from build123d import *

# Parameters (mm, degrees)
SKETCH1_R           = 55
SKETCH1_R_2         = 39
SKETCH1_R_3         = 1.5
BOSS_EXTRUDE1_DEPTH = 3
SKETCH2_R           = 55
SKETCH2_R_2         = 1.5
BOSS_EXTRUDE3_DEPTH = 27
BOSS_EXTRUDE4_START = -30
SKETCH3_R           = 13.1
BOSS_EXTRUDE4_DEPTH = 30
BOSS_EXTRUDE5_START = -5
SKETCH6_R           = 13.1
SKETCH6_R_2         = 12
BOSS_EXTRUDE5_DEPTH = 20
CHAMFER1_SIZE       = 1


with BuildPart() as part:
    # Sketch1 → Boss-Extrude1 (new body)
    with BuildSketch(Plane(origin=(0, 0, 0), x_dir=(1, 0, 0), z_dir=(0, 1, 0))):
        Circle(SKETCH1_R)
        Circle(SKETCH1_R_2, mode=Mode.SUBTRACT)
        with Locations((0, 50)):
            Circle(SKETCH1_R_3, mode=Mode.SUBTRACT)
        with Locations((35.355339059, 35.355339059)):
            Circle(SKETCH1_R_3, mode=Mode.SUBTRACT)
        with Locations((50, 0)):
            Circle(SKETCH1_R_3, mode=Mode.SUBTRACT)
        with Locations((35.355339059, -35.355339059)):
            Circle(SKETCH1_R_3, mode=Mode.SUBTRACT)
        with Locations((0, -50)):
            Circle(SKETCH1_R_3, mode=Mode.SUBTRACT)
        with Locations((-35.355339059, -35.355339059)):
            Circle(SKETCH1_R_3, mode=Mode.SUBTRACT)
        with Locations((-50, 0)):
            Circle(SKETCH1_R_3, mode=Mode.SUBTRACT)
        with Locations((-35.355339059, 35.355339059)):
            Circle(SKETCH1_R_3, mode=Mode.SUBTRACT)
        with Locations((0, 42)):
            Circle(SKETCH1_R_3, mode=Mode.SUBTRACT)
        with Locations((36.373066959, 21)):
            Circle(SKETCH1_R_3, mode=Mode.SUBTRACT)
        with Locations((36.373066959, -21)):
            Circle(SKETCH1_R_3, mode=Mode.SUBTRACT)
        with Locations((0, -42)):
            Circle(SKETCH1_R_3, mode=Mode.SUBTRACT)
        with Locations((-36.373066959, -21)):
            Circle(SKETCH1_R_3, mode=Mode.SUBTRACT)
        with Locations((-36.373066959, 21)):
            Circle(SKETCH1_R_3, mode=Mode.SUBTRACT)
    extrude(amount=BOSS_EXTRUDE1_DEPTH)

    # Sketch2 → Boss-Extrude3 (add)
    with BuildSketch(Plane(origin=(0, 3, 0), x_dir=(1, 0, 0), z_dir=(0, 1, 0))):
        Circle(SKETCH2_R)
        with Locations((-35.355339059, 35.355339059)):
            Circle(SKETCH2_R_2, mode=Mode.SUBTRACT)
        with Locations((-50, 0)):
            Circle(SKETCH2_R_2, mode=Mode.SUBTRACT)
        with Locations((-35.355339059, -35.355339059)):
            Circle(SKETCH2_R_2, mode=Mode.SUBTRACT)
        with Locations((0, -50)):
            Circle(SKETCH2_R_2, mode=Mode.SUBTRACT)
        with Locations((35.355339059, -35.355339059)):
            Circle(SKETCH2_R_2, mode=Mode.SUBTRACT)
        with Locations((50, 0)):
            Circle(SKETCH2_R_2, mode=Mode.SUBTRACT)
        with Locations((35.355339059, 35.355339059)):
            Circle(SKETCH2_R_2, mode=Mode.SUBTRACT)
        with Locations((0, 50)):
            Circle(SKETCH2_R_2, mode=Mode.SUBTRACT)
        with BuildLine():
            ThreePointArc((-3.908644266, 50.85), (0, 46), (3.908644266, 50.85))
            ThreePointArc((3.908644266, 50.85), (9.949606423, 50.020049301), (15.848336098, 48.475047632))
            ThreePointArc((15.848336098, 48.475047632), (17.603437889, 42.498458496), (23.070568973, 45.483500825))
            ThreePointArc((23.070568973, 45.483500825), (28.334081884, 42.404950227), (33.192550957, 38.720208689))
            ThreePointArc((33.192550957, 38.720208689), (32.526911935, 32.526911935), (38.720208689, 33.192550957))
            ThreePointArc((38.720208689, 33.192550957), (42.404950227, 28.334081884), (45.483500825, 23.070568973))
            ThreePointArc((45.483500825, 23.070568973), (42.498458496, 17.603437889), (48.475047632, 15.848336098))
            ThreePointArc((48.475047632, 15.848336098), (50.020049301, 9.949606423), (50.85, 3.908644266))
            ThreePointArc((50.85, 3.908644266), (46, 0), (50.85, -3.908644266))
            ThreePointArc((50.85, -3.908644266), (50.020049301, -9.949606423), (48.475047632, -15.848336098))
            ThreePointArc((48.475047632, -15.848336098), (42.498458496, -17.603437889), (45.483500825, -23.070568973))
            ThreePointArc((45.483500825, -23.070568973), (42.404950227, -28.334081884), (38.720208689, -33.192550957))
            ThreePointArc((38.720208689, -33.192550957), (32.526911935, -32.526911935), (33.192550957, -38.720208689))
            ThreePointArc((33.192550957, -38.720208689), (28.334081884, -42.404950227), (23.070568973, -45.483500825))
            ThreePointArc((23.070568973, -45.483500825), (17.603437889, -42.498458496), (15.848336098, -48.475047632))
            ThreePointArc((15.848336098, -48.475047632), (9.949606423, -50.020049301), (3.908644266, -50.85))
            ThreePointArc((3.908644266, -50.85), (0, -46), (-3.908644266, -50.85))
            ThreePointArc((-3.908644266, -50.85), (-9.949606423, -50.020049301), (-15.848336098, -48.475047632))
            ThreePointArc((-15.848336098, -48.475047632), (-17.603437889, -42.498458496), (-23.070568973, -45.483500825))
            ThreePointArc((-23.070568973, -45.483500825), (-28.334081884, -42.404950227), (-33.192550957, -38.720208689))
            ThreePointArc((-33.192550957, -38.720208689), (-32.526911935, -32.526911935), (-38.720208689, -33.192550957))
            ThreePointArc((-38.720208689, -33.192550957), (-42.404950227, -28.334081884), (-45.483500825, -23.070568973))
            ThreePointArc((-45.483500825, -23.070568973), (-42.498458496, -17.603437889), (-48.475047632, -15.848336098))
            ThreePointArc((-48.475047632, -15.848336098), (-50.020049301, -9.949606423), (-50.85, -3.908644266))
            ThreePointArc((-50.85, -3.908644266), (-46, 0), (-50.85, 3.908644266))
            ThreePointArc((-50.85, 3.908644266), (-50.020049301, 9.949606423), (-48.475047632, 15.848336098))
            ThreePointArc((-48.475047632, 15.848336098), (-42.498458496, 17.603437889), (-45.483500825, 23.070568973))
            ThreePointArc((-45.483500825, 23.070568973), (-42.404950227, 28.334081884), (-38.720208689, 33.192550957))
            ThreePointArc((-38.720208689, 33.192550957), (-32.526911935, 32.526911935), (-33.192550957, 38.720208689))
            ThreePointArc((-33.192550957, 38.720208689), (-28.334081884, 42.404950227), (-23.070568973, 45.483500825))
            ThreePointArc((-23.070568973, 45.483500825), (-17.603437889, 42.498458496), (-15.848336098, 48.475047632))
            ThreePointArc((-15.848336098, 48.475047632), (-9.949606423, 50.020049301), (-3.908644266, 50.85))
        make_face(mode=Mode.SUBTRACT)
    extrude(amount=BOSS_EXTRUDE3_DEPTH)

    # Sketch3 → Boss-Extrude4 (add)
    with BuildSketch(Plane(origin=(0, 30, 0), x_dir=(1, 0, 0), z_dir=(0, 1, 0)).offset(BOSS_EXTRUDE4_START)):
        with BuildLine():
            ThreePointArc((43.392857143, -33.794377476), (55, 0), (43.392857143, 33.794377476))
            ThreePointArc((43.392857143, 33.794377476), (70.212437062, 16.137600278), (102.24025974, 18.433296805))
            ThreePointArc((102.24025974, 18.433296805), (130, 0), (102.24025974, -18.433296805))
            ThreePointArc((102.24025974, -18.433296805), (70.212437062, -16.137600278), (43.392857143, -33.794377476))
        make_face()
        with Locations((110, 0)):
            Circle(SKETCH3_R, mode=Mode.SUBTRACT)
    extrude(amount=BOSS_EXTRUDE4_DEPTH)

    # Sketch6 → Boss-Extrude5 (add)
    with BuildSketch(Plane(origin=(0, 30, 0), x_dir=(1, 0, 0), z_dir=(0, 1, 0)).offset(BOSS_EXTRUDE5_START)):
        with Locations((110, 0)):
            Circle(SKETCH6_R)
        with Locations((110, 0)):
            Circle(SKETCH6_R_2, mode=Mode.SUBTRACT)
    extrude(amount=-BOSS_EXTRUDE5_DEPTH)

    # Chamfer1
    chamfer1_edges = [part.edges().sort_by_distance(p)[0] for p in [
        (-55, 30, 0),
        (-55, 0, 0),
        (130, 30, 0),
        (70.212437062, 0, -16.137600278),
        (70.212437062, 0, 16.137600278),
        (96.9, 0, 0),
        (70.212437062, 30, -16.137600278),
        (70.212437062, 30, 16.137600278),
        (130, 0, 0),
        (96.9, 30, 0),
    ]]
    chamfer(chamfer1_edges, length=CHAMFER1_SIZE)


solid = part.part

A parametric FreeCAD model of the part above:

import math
import FreeCAD as App
import Part
import Sketcher

V = App.Vector


def edges_at(feature, points):
    """Names of the edges that pass closest to the given points."""
    edges = feature.Shape.Edges
    near = lambda p: min(range(len(edges)), key=lambda i: edges[i].distToShape(Part.Vertex(*p))[0])
    return sorted({f"Edge{near(p) + 1}" for p in points})

doc = App.newDocument("Part")
body = doc.addObject("PartDesign::Body", "Body")

sketch1 = body.newObject("Sketcher::SketchObject", "Sketch")
sketch1.AttachmentSupport = (doc.getObject("XZ_Plane"), [""])
sketch1.MapMode = "FlatFace"
sketch1.addGeometry([
    Part.Circle(V(0, 0, 0), V(0, 0, 1), 55),
    Part.Circle(V(-35.4, 35.4, 0), V(0, 0, 1), 1.5),
    Part.Circle(V(0, 50, 0), V(0, 0, 1), 1.5),
    Part.Circle(V(0, 42, 0), V(0, 0, 1), 1.5),
    Part.Circle(V(-36.4, 21, 0), V(0, 0, 1), 1.5),
    Part.Circle(V(-50, 0, 0), V(0, 0, 1), 1.5),
    Part.Circle(V(0, 0, 0), V(0, 0, 1), 39),
    Part.Circle(V(35.4, 35.4, 0), V(0, 0, 1), 1.5),
    Part.Circle(V(36.4, 21, 0), V(0, 0, 1), 1.5),
    Part.Circle(V(50, 0, 0), V(0, 0, 1), 1.5),
    Part.Circle(V(-36.4, -21, 0), V(0, 0, 1), 1.5),
    Part.Circle(V(-35.4, -35.4, 0), V(0, 0, 1), 1.5),
    Part.Circle(V(0, -42, 0), V(0, 0, 1), 1.5),
    Part.Circle(V(0, -50, 0), V(0, 0, 1), 1.5),
    Part.Circle(V(36.4, -21, 0), V(0, 0, 1), 1.5),
    Part.Circle(V(35.4, -35.4, 0), V(0, 0, 1), 1.5),
], False)
sketch1.addConstraint([
    Sketcher.Constraint("Coincident", 0, 3, -1, 1),
    Sketcher.Constraint("Coincident", 6, 3, -1, 1),
    Sketcher.Constraint("Equal", 1, 2),
    Sketcher.Constraint("Equal", 2, 3),
    Sketcher.Constraint("Equal", 3, 4),
    Sketcher.Constraint("Equal", 4, 5),
    Sketcher.Constraint("Equal", 5, 7),
    Sketcher.Constraint("Equal", 7, 8),
    Sketcher.Constraint("Equal", 8, 9),
    Sketcher.Constraint("Equal", 9, 10),
    Sketcher.Constraint("Equal", 10, 11),
    Sketcher.Constraint("Equal", 11, 12),
    Sketcher.Constraint("Equal", 12, 13),
    Sketcher.Constraint("Equal", 13, 14),
    Sketcher.Constraint("Equal", 14, 15),
    Sketcher.Constraint("Symmetric", 5, 3, 9, 3, -1, 1),
    Sketcher.Constraint("Symmetric", 8, 3, 10, 3, -1, 1),
    Sketcher.Constraint("Symmetric", 7, 3, 11, 3, -1, 1),
    Sketcher.Constraint("Symmetric", 3, 3, 12, 3, -1, 1),
    Sketcher.Constraint("Symmetric", 2, 3, 13, 3, -1, 1),
    Sketcher.Constraint("Symmetric", 4, 3, 14, 3, -1, 1),
    Sketcher.Constraint("Symmetric", 1, 3, 15, 3, -1, 1),
    Sketcher.Constraint("Symmetric", 1, 3, 7, 3, -2),
    Sketcher.Constraint("Symmetric", 4, 3, 8, 3, -2),
    Sketcher.Constraint("PointOnObject", 2, 3, -2),
    Sketcher.Constraint("PointOnObject", 3, 3, -2),
    Sketcher.Constraint("PointOnObject", 5, 3, -1),
    Sketcher.Constraint("Diameter", 0, 110.0),
    Sketcher.Constraint("Diameter", 1, 3.0),
    Sketcher.Constraint("Diameter", 6, 78.0),
    Sketcher.Constraint("DistanceY", -1, 1, 2, 3, 50.0),
    Sketcher.Constraint("DistanceY", -1, 1, 3, 3, 42.0),
    Sketcher.Constraint("DistanceY", -1, 1, 4, 3, 21.0),
    Sketcher.Constraint("DistanceX", 5, 3, -1, 1, 50.0),
    Sketcher.Constraint("DistanceX", 1, 3, -1, 1, 35.355339),
    Sketcher.Constraint("DistanceY", -1, 1, 1, 3, 35.355339),
    Sketcher.Constraint("DistanceX", 4, 3, -1, 1, 36.373067),
])
pad1 = body.newObject("PartDesign::Pad", "Pad")
pad1.Profile = sketch1
pad1.Length = 3
pad1.Reversed = True

sketch2 = body.newObject("Sketcher::SketchObject", "Sketch001")
sketch2.AttachmentSupport = (doc.getObject("XZ_Plane"), [""])
sketch2.MapMode = "FlatFace"
sketch2.AttachmentOffset = App.Placement(V(0, 0, -3), App.Rotation())
sketch2.addGeometry([
    Part.Circle(V(0, 0, 0), V(0, 0, 1), 55),
    Part.Circle(V(-35.4, 35.4, 0), V(0, 0, 1), 1.5),
    Part.Circle(V(0, 50, 0), V(0, 0, 1), 1.5),
    Part.Circle(V(-50, 0, 0), V(0, 0, 1), 1.5),
    Part.ArcOfCircle(Part.Circle(V(0, 0, 0), V(0, 0, 1), 51), math.radians(-108.1), math.radians(-94.4)),
    Part.ArcOfCircle(Part.Circle(V(0, -50, 0), V(0, 0, 1), 4), math.radians(-12), math.radians(192)),
    Part.ArcOfCircle(Part.Circle(V(0, 0, 0), V(0, 0, 1), 51), math.radians(-85.6), math.radians(-71.9)),
    Part.ArcOfCircle(Part.Circle(V(19.1, -46.2, 0), V(0, 0, 1), 4), math.radians(10), math.radians(215)),
    Part.ArcOfCircle(Part.Circle(V(0, 0, 0), V(0, 0, 1), 51), math.radians(-63.1), math.radians(-49.4)),
    Part.ArcOfCircle(Part.Circle(V(35.4, -35.4, 0), V(0, 0, 1), 4), math.radians(33), math.radians(237)),
    Part.ArcOfCircle(Part.Circle(V(0, 0, 0), V(0, 0, 1), 51), math.radians(-40.6), math.radians(-26.9)),
    Part.ArcOfCircle(Part.Circle(V(46.2, -19.1, 0), V(0, 0, 1), 4), math.radians(55), math.radians(260)),
    Part.ArcOfCircle(Part.Circle(V(0, 0, 0), V(0, 0, 1), 51), math.radians(-18.1), math.radians(-4.4)),
    Part.ArcOfCircle(Part.Circle(V(50, 0, 0), V(0, 0, 1), 4), math.radians(78), math.radians(282)),
    Part.ArcOfCircle(Part.Circle(V(0, 0, 0), V(0, 0, 1), 51), math.radians(4.4), math.radians(18.1)),
    Part.ArcOfCircle(Part.Circle(V(46.2, 19.1, 0), V(0, 0, 1), 4), math.radians(100), math.radians(305)),
    Part.ArcOfCircle(Part.Circle(V(0, 0, 0), V(0, 0, 1), 51), math.radians(26.9), math.radians(40.6)),
    Part.ArcOfCircle(Part.Circle(V(35.4, 35.4, 0), V(0, 0, 1), 4), math.radians(123), math.radians(327)),
    Part.ArcOfCircle(Part.Circle(V(0, 0, 0), V(0, 0, 1), 51), math.radians(49.4), math.radians(63.1)),
    Part.ArcOfCircle(Part.Circle(V(19.1, 46.2, 0), V(0, 0, 1), 4), math.radians(145), math.radians(350)),
    Part.ArcOfCircle(Part.Circle(V(0, 0, 0), V(0, 0, 1), 51), math.radians(71.9), math.radians(85.6)),
    Part.ArcOfCircle(Part.Circle(V(0, 50, 0), V(0, 0, 1), 4), math.radians(168), math.radians(372)),
    Part.ArcOfCircle(Part.Circle(V(0, 0, 0), V(0, 0, 1), 51), math.radians(94.4), math.radians(108.1)),
    Part.ArcOfCircle(Part.Circle(V(-19.1, 46.2, 0), V(0, 0, 1), 4), math.radians(-170), math.radians(35)),
    Part.ArcOfCircle(Part.Circle(V(0, 0, 0), V(0, 0, 1), 51), math.radians(116.9), math.radians(130.6)),
    Part.ArcOfCircle(Part.Circle(V(-35.4, 35.4, 0), V(0, 0, 1), 4), math.radians(-147), math.radians(57)),
    Part.ArcOfCircle(Part.Circle(V(0, 0, 0), V(0, 0, 1), 51), math.radians(139.4), math.radians(153.1)),
    Part.ArcOfCircle(Part.Circle(V(-46.2, 19.1, 0), V(0, 0, 1), 4), math.radians(-125), math.radians(80)),
    Part.ArcOfCircle(Part.Circle(V(0, 0, 0), V(0, 0, 1), 51), math.radians(161.9), math.radians(175.6)),
    Part.ArcOfCircle(Part.Circle(V(-50, 0, 0), V(0, 0, 1), 4), math.radians(-102), math.radians(102)),
    Part.ArcOfCircle(Part.Circle(V(0, 0, 0), V(0, 0, 1), 51), math.radians(-175.6), math.radians(-161.9)),
    Part.ArcOfCircle(Part.Circle(V(-46.2, -19.1, 0), V(0, 0, 1), 4), math.radians(-80), math.radians(125)),
    Part.ArcOfCircle(Part.Circle(V(0, 0, 0), V(0, 0, 1), 51), math.radians(-153.1), math.radians(-139.4)),
    Part.ArcOfCircle(Part.Circle(V(-35.4, -35.4, 0), V(0, 0, 1), 4), math.radians(-57), math.radians(147)),
    Part.ArcOfCircle(Part.Circle(V(0, 0, 0), V(0, 0, 1), 51), math.radians(-130.6), math.radians(-116.9)),
    Part.ArcOfCircle(Part.Circle(V(-19.1, -46.2, 0), V(0, 0, 1), 4), math.radians(-35), math.radians(170)),
    Part.Circle(V(35.4, 35.4, 0), V(0, 0, 1), 1.5),
    Part.Circle(V(50, 0, 0), V(0, 0, 1), 1.5),
    Part.Circle(V(-35.4, -35.4, 0), V(0, 0, 1), 1.5),
    Part.Circle(V(0, -50, 0), V(0, 0, 1), 1.5),
    Part.Circle(V(35.4, -35.4, 0), V(0, 0, 1), 1.5),
], False)
sketch2.addConstraint([
    Sketcher.Constraint("Coincident", 4, 2, 5, 2),
    Sketcher.Constraint("Coincident", 5, 1, 6, 1),
    Sketcher.Constraint("Coincident", 6, 2, 7, 2),
    Sketcher.Constraint("Coincident", 7, 1, 8, 1),
    Sketcher.Constraint("Coincident", 8, 2, 9, 2),
    Sketcher.Constraint("Coincident", 9, 1, 10, 1),
    Sketcher.Constraint("Coincident", 10, 2, 11, 2),
    Sketcher.Constraint("Coincident", 11, 1, 12, 1),
    Sketcher.Constraint("Coincident", 12, 2, 13, 2),
    Sketcher.Constraint("Coincident", 13, 1, 14, 1),
    Sketcher.Constraint("Coincident", 14, 2, 15, 2),
    Sketcher.Constraint("Coincident", 15, 1, 16, 1),
    Sketcher.Constraint("Coincident", 16, 2, 17, 2),
    Sketcher.Constraint("Coincident", 17, 1, 18, 1),
    Sketcher.Constraint("Coincident", 18, 2, 19, 2),
    Sketcher.Constraint("Coincident", 19, 1, 20, 1),
    Sketcher.Constraint("Coincident", 20, 2, 21, 2),
    Sketcher.Constraint("Coincident", 21, 1, 22, 1),
    Sketcher.Constraint("Coincident", 22, 2, 23, 2),
    Sketcher.Constraint("Coincident", 23, 1, 24, 1),
    Sketcher.Constraint("Coincident", 24, 2, 25, 2),
    Sketcher.Constraint("Coincident", 25, 1, 26, 1),
    Sketcher.Constraint("Coincident", 26, 2, 27, 2),
    Sketcher.Constraint("Coincident", 27, 1, 28, 1),
    Sketcher.Constraint("Coincident", 28, 2, 29, 2),
    Sketcher.Constraint("Coincident", 29, 1, 30, 1),
    Sketcher.Constraint("Coincident", 30, 2, 31, 2),
    Sketcher.Constraint("Coincident", 31, 1, 32, 1),
    Sketcher.Constraint("Coincident", 32, 2, 33, 2),
    Sketcher.Constraint("Coincident", 33, 1, 34, 1),
    Sketcher.Constraint("Coincident", 34, 2, 35, 2),
    Sketcher.Constraint("Coincident", 35, 1, 4, 1),
    Sketcher.Constraint("Coincident", 0, 3, -1, 1),
    Sketcher.Constraint("Coincident", 4, 3, -1, 1),
    Sketcher.Constraint("Coincident", 6, 3, -1, 1),
    Sketcher.Constraint("Coincident", 8, 3, -1, 1),
    Sketcher.Constraint("Coincident", 10, 3, -1, 1),
    Sketcher.Constraint("Coincident", 12, 3, -1, 1),
    Sketcher.Constraint("Coincident", 14, 3, -1, 1),
    Sketcher.Constraint("Coincident", 16, 3, -1, 1),
    Sketcher.Constraint("Coincident", 18, 3, -1, 1),
    Sketcher.Constraint("Coincident", 20, 3, -1, 1),
    Sketcher.Constraint("Coincident", 22, 3, -1, 1),
    Sketcher.Constraint("Coincident", 24, 3, -1, 1),
    Sketcher.Constraint("Coincident", 26, 3, -1, 1),
    Sketcher.Constraint("Coincident", 28, 3, -1, 1),
    Sketcher.Constraint("Coincident", 30, 3, -1, 1),
    Sketcher.Constraint("Coincident", 32, 3, -1, 1),
    Sketcher.Constraint("Coincident", 34, 3, -1, 1),
    Sketcher.Constraint("Coincident", 21, 3, 2, 3),
    Sketcher.Constraint("Coincident", 25, 3, 1, 3),
    Sketcher.Constraint("Coincident", 29, 3, 3, 3),
    Sketcher.Constraint("Coincident", 36, 3, 17, 3),
    Sketcher.Constraint("Coincident", 37, 3, 13, 3),
    Sketcher.Constraint("Coincident", 38, 3, 33, 3),
    Sketcher.Constraint("Coincident", 39, 3, 5, 3),
    Sketcher.Constraint("Coincident", 40, 3, 9, 3),
    Sketcher.Constraint("Equal", 1, 2),
    Sketcher.Constraint("Equal", 2, 3),
    Sketcher.Constraint("Equal", 4, 6),
    Sketcher.Constraint("Equal", 5, 7),
    Sketcher.Constraint("Equal", 6, 8),
    Sketcher.Constraint("Equal", 7, 9),
    Sketcher.Constraint("Equal", 8, 10),
    Sketcher.Constraint("Equal", 9, 11),
    Sketcher.Constraint("Equal", 10, 12),
    Sketcher.Constraint("Equal", 11, 13),
    Sketcher.Constraint("Equal", 12, 14),
    Sketcher.Constraint("Equal", 13, 15),
    Sketcher.Constraint("Equal", 14, 16),
    Sketcher.Constraint("Equal", 15, 17),
    Sketcher.Constraint("Equal", 16, 18),
    Sketcher.Constraint("Equal", 17, 19),
    Sketcher.Constraint("Equal", 18, 20),
    Sketcher.Constraint("Equal", 19, 21),
    Sketcher.Constraint("Equal", 20, 22),
    Sketcher.Constraint("Equal", 21, 23),
    Sketcher.Constraint("Equal", 22, 24),
    Sketcher.Constraint("Equal", 23, 25),
    Sketcher.Constraint("Equal", 24, 26),
    Sketcher.Constraint("Equal", 25, 27),
    Sketcher.Constraint("Equal", 26, 28),
    Sketcher.Constraint("Equal", 27, 29),
    Sketcher.Constraint("Equal", 28, 30),
    Sketcher.Constraint("Equal", 29, 31),
    Sketcher.Constraint("Equal", 30, 32),
    Sketcher.Constraint("Equal", 31, 33),
    Sketcher.Constraint("Equal", 32, 34),
    Sketcher.Constraint("Equal", 33, 35),
    Sketcher.Constraint("Equal", 3, 36),
    Sketcher.Constraint("Equal", 36, 37),
    Sketcher.Constraint("Equal", 37, 38),
    Sketcher.Constraint("Equal", 38, 39),
    Sketcher.Constraint("Equal", 39, 40),
    Sketcher.Constraint("Symmetric", 2, 3, 5, 3, -1, 1),
    Sketcher.Constraint("Symmetric", 1, 3, 9, 3, -1, 1),
    Sketcher.Constraint("Symmetric", 3, 3, 13, 3, -1, 1),
    Sketcher.Constraint("Symmetric", 7, 3, 23, 3, -1, 1),
    Sketcher.Constraint("Symmetric", 11, 3, 27, 3, -1, 1),
    Sketcher.Constraint("Symmetric", 15, 3, 31, 3, -1, 1),
    Sketcher.Constraint("Symmetric", 17, 3, 33, 3, -1, 1),
    Sketcher.Constraint("Symmetric", 19, 3, 35, 3, -1, 1),
    Sketcher.Constraint("Symmetric", 1, 3, 17, 3, -2),
    Sketcher.Constraint("Symmetric", 19, 3, 23, 3, -2),
    Sketcher.Constraint("Symmetric", 15, 3, 27, 3, -2),
    Sketcher.Constraint("PointOnObject", 2, 3, -2),
    Sketcher.Constraint("PointOnObject", 3, 3, -1),
    Sketcher.Constraint("Diameter", 0, 110.0),
    Sketcher.Constraint("Diameter", 1, 3.0),
    Sketcher.Constraint("Radius", 4, 51.0),
    Sketcher.Constraint("Radius", 5, 4.0),
    Sketcher.Constraint("DistanceY", -1, 1, 2, 3, 50.0),
    Sketcher.Constraint("DistanceX", 3, 3, -1, 1, 50.0),
    Sketcher.Constraint("DistanceY", 7, 1, -1, 1, 45.483501),
    Sketcher.Constraint("DistanceX", -1, 1, 10, 2, 45.483501),
    Sketcher.Constraint("DistanceX", 1, 3, -1, 1, 35.355339),
    Sketcher.Constraint("DistanceY", -1, 1, 1, 3, 35.355339),
    Sketcher.Constraint("DistanceX", -1, 1, 7, 3, 19.134172),
    Sketcher.Constraint("DistanceY", 11, 3, -1, 1, 19.134172),
])
pad2 = body.newObject("PartDesign::Pad", "Pad001")
pad2.Profile = sketch2
pad2.Length = 27
pad2.Reversed = True

sketch3 = body.newObject("Sketcher::SketchObject", "Sketch002")
sketch3.AttachmentSupport = (doc.getObject("XZ_Plane"), [""])
sketch3.MapMode = "FlatFace"
sketch3.addGeometry([
    Part.ArcOfCircle(Part.Circle(V(0, 0, 0), V(0, 0, 1), 55), math.radians(-38), math.radians(38)),
    Part.ArcOfCircle(Part.Circle(V(83, 65, 0), V(0, 0, 1), 50), math.radians(-142), math.radians(-67)),
    Part.ArcOfCircle(Part.Circle(V(110, 0, 0), V(0, 0, 1), 20), math.radians(-113), math.radians(113)),
    Part.ArcOfCircle(Part.Circle(V(83, -65, 0), V(0, 0, 1), 50), math.radians(67), math.radians(142)),
    Part.Circle(V(110, 0, 0), V(0, 0, 1), 13),
], False)
sketch3.addConstraint([
    Sketcher.Constraint("Tangent", 0, 2, 1, 1),
    Sketcher.Constraint("Tangent", 1, 2, 2, 2),
    Sketcher.Constraint("Tangent", 2, 1, 3, 1),
    Sketcher.Constraint("Tangent", 3, 2, 0, 1),
    Sketcher.Constraint("Coincident", 0, 3, -1, 1),
    Sketcher.Constraint("Coincident", 4, 3, 2, 3),
    Sketcher.Constraint("Equal", 1, 3),
    Sketcher.Constraint("PointOnObject", 2, 3, -1),
    Sketcher.Constraint("Radius", 0, 55.0),
    Sketcher.Constraint("Radius", 1, 50.0),
    Sketcher.Constraint("Radius", 2, 20.0),
    Sketcher.Constraint("Diameter", 4, 26.2),
    Sketcher.Constraint("DistanceX", -1, 1, 2, 3, 110.0),
])
pad3 = body.newObject("PartDesign::Pad", "Pad002")
pad3.Profile = sketch3
pad3.Length = 30
pad3.Reversed = True

sketch4 = body.newObject("Sketcher::SketchObject", "Sketch003")
sketch4.AttachmentSupport = (doc.getObject("XZ_Plane"), [""])
sketch4.MapMode = "FlatFace"
sketch4.AttachmentOffset = App.Placement(V(0, 0, -25), App.Rotation())
sketch4.addGeometry([
    Part.Circle(V(110, 0, 0), V(0, 0, 1), 13),
    Part.Circle(V(110, 0, 0), V(0, 0, 1), 12),
], False)
sketch4.addConstraint([
    Sketcher.Constraint("Coincident", 1, 3, 0, 3),
    Sketcher.Constraint("PointOnObject", 0, 3, -1),
    Sketcher.Constraint("Diameter", 1, 24.0),
    Sketcher.Constraint("Diameter", 0, 26.2),
    Sketcher.Constraint("DistanceX", -1, 1, 0, 3, 110.0),
])
pad4 = body.newObject("PartDesign::Pad", "Pad003")
pad4.Profile = sketch4
pad4.Length = 20
doc.recompute()

chamfer = body.newObject("PartDesign::Chamfer", "Chamfer")
chamfer.Base = (pad4, edges_at(pad4, [
    (-55, 30, 0),
    (-55, 0, 0),
    (130, 30, 0),
    (70.212, 0, -16.138),
    (70.212, 0, 16.138),
    (96.9, 0, 0),
    (70.212, 30, -16.138),
    (70.212, 30, 16.138),
    (130, 0, 0),
    (96.9, 30, 0),
]))
chamfer.Size = 1

doc.recompute()
